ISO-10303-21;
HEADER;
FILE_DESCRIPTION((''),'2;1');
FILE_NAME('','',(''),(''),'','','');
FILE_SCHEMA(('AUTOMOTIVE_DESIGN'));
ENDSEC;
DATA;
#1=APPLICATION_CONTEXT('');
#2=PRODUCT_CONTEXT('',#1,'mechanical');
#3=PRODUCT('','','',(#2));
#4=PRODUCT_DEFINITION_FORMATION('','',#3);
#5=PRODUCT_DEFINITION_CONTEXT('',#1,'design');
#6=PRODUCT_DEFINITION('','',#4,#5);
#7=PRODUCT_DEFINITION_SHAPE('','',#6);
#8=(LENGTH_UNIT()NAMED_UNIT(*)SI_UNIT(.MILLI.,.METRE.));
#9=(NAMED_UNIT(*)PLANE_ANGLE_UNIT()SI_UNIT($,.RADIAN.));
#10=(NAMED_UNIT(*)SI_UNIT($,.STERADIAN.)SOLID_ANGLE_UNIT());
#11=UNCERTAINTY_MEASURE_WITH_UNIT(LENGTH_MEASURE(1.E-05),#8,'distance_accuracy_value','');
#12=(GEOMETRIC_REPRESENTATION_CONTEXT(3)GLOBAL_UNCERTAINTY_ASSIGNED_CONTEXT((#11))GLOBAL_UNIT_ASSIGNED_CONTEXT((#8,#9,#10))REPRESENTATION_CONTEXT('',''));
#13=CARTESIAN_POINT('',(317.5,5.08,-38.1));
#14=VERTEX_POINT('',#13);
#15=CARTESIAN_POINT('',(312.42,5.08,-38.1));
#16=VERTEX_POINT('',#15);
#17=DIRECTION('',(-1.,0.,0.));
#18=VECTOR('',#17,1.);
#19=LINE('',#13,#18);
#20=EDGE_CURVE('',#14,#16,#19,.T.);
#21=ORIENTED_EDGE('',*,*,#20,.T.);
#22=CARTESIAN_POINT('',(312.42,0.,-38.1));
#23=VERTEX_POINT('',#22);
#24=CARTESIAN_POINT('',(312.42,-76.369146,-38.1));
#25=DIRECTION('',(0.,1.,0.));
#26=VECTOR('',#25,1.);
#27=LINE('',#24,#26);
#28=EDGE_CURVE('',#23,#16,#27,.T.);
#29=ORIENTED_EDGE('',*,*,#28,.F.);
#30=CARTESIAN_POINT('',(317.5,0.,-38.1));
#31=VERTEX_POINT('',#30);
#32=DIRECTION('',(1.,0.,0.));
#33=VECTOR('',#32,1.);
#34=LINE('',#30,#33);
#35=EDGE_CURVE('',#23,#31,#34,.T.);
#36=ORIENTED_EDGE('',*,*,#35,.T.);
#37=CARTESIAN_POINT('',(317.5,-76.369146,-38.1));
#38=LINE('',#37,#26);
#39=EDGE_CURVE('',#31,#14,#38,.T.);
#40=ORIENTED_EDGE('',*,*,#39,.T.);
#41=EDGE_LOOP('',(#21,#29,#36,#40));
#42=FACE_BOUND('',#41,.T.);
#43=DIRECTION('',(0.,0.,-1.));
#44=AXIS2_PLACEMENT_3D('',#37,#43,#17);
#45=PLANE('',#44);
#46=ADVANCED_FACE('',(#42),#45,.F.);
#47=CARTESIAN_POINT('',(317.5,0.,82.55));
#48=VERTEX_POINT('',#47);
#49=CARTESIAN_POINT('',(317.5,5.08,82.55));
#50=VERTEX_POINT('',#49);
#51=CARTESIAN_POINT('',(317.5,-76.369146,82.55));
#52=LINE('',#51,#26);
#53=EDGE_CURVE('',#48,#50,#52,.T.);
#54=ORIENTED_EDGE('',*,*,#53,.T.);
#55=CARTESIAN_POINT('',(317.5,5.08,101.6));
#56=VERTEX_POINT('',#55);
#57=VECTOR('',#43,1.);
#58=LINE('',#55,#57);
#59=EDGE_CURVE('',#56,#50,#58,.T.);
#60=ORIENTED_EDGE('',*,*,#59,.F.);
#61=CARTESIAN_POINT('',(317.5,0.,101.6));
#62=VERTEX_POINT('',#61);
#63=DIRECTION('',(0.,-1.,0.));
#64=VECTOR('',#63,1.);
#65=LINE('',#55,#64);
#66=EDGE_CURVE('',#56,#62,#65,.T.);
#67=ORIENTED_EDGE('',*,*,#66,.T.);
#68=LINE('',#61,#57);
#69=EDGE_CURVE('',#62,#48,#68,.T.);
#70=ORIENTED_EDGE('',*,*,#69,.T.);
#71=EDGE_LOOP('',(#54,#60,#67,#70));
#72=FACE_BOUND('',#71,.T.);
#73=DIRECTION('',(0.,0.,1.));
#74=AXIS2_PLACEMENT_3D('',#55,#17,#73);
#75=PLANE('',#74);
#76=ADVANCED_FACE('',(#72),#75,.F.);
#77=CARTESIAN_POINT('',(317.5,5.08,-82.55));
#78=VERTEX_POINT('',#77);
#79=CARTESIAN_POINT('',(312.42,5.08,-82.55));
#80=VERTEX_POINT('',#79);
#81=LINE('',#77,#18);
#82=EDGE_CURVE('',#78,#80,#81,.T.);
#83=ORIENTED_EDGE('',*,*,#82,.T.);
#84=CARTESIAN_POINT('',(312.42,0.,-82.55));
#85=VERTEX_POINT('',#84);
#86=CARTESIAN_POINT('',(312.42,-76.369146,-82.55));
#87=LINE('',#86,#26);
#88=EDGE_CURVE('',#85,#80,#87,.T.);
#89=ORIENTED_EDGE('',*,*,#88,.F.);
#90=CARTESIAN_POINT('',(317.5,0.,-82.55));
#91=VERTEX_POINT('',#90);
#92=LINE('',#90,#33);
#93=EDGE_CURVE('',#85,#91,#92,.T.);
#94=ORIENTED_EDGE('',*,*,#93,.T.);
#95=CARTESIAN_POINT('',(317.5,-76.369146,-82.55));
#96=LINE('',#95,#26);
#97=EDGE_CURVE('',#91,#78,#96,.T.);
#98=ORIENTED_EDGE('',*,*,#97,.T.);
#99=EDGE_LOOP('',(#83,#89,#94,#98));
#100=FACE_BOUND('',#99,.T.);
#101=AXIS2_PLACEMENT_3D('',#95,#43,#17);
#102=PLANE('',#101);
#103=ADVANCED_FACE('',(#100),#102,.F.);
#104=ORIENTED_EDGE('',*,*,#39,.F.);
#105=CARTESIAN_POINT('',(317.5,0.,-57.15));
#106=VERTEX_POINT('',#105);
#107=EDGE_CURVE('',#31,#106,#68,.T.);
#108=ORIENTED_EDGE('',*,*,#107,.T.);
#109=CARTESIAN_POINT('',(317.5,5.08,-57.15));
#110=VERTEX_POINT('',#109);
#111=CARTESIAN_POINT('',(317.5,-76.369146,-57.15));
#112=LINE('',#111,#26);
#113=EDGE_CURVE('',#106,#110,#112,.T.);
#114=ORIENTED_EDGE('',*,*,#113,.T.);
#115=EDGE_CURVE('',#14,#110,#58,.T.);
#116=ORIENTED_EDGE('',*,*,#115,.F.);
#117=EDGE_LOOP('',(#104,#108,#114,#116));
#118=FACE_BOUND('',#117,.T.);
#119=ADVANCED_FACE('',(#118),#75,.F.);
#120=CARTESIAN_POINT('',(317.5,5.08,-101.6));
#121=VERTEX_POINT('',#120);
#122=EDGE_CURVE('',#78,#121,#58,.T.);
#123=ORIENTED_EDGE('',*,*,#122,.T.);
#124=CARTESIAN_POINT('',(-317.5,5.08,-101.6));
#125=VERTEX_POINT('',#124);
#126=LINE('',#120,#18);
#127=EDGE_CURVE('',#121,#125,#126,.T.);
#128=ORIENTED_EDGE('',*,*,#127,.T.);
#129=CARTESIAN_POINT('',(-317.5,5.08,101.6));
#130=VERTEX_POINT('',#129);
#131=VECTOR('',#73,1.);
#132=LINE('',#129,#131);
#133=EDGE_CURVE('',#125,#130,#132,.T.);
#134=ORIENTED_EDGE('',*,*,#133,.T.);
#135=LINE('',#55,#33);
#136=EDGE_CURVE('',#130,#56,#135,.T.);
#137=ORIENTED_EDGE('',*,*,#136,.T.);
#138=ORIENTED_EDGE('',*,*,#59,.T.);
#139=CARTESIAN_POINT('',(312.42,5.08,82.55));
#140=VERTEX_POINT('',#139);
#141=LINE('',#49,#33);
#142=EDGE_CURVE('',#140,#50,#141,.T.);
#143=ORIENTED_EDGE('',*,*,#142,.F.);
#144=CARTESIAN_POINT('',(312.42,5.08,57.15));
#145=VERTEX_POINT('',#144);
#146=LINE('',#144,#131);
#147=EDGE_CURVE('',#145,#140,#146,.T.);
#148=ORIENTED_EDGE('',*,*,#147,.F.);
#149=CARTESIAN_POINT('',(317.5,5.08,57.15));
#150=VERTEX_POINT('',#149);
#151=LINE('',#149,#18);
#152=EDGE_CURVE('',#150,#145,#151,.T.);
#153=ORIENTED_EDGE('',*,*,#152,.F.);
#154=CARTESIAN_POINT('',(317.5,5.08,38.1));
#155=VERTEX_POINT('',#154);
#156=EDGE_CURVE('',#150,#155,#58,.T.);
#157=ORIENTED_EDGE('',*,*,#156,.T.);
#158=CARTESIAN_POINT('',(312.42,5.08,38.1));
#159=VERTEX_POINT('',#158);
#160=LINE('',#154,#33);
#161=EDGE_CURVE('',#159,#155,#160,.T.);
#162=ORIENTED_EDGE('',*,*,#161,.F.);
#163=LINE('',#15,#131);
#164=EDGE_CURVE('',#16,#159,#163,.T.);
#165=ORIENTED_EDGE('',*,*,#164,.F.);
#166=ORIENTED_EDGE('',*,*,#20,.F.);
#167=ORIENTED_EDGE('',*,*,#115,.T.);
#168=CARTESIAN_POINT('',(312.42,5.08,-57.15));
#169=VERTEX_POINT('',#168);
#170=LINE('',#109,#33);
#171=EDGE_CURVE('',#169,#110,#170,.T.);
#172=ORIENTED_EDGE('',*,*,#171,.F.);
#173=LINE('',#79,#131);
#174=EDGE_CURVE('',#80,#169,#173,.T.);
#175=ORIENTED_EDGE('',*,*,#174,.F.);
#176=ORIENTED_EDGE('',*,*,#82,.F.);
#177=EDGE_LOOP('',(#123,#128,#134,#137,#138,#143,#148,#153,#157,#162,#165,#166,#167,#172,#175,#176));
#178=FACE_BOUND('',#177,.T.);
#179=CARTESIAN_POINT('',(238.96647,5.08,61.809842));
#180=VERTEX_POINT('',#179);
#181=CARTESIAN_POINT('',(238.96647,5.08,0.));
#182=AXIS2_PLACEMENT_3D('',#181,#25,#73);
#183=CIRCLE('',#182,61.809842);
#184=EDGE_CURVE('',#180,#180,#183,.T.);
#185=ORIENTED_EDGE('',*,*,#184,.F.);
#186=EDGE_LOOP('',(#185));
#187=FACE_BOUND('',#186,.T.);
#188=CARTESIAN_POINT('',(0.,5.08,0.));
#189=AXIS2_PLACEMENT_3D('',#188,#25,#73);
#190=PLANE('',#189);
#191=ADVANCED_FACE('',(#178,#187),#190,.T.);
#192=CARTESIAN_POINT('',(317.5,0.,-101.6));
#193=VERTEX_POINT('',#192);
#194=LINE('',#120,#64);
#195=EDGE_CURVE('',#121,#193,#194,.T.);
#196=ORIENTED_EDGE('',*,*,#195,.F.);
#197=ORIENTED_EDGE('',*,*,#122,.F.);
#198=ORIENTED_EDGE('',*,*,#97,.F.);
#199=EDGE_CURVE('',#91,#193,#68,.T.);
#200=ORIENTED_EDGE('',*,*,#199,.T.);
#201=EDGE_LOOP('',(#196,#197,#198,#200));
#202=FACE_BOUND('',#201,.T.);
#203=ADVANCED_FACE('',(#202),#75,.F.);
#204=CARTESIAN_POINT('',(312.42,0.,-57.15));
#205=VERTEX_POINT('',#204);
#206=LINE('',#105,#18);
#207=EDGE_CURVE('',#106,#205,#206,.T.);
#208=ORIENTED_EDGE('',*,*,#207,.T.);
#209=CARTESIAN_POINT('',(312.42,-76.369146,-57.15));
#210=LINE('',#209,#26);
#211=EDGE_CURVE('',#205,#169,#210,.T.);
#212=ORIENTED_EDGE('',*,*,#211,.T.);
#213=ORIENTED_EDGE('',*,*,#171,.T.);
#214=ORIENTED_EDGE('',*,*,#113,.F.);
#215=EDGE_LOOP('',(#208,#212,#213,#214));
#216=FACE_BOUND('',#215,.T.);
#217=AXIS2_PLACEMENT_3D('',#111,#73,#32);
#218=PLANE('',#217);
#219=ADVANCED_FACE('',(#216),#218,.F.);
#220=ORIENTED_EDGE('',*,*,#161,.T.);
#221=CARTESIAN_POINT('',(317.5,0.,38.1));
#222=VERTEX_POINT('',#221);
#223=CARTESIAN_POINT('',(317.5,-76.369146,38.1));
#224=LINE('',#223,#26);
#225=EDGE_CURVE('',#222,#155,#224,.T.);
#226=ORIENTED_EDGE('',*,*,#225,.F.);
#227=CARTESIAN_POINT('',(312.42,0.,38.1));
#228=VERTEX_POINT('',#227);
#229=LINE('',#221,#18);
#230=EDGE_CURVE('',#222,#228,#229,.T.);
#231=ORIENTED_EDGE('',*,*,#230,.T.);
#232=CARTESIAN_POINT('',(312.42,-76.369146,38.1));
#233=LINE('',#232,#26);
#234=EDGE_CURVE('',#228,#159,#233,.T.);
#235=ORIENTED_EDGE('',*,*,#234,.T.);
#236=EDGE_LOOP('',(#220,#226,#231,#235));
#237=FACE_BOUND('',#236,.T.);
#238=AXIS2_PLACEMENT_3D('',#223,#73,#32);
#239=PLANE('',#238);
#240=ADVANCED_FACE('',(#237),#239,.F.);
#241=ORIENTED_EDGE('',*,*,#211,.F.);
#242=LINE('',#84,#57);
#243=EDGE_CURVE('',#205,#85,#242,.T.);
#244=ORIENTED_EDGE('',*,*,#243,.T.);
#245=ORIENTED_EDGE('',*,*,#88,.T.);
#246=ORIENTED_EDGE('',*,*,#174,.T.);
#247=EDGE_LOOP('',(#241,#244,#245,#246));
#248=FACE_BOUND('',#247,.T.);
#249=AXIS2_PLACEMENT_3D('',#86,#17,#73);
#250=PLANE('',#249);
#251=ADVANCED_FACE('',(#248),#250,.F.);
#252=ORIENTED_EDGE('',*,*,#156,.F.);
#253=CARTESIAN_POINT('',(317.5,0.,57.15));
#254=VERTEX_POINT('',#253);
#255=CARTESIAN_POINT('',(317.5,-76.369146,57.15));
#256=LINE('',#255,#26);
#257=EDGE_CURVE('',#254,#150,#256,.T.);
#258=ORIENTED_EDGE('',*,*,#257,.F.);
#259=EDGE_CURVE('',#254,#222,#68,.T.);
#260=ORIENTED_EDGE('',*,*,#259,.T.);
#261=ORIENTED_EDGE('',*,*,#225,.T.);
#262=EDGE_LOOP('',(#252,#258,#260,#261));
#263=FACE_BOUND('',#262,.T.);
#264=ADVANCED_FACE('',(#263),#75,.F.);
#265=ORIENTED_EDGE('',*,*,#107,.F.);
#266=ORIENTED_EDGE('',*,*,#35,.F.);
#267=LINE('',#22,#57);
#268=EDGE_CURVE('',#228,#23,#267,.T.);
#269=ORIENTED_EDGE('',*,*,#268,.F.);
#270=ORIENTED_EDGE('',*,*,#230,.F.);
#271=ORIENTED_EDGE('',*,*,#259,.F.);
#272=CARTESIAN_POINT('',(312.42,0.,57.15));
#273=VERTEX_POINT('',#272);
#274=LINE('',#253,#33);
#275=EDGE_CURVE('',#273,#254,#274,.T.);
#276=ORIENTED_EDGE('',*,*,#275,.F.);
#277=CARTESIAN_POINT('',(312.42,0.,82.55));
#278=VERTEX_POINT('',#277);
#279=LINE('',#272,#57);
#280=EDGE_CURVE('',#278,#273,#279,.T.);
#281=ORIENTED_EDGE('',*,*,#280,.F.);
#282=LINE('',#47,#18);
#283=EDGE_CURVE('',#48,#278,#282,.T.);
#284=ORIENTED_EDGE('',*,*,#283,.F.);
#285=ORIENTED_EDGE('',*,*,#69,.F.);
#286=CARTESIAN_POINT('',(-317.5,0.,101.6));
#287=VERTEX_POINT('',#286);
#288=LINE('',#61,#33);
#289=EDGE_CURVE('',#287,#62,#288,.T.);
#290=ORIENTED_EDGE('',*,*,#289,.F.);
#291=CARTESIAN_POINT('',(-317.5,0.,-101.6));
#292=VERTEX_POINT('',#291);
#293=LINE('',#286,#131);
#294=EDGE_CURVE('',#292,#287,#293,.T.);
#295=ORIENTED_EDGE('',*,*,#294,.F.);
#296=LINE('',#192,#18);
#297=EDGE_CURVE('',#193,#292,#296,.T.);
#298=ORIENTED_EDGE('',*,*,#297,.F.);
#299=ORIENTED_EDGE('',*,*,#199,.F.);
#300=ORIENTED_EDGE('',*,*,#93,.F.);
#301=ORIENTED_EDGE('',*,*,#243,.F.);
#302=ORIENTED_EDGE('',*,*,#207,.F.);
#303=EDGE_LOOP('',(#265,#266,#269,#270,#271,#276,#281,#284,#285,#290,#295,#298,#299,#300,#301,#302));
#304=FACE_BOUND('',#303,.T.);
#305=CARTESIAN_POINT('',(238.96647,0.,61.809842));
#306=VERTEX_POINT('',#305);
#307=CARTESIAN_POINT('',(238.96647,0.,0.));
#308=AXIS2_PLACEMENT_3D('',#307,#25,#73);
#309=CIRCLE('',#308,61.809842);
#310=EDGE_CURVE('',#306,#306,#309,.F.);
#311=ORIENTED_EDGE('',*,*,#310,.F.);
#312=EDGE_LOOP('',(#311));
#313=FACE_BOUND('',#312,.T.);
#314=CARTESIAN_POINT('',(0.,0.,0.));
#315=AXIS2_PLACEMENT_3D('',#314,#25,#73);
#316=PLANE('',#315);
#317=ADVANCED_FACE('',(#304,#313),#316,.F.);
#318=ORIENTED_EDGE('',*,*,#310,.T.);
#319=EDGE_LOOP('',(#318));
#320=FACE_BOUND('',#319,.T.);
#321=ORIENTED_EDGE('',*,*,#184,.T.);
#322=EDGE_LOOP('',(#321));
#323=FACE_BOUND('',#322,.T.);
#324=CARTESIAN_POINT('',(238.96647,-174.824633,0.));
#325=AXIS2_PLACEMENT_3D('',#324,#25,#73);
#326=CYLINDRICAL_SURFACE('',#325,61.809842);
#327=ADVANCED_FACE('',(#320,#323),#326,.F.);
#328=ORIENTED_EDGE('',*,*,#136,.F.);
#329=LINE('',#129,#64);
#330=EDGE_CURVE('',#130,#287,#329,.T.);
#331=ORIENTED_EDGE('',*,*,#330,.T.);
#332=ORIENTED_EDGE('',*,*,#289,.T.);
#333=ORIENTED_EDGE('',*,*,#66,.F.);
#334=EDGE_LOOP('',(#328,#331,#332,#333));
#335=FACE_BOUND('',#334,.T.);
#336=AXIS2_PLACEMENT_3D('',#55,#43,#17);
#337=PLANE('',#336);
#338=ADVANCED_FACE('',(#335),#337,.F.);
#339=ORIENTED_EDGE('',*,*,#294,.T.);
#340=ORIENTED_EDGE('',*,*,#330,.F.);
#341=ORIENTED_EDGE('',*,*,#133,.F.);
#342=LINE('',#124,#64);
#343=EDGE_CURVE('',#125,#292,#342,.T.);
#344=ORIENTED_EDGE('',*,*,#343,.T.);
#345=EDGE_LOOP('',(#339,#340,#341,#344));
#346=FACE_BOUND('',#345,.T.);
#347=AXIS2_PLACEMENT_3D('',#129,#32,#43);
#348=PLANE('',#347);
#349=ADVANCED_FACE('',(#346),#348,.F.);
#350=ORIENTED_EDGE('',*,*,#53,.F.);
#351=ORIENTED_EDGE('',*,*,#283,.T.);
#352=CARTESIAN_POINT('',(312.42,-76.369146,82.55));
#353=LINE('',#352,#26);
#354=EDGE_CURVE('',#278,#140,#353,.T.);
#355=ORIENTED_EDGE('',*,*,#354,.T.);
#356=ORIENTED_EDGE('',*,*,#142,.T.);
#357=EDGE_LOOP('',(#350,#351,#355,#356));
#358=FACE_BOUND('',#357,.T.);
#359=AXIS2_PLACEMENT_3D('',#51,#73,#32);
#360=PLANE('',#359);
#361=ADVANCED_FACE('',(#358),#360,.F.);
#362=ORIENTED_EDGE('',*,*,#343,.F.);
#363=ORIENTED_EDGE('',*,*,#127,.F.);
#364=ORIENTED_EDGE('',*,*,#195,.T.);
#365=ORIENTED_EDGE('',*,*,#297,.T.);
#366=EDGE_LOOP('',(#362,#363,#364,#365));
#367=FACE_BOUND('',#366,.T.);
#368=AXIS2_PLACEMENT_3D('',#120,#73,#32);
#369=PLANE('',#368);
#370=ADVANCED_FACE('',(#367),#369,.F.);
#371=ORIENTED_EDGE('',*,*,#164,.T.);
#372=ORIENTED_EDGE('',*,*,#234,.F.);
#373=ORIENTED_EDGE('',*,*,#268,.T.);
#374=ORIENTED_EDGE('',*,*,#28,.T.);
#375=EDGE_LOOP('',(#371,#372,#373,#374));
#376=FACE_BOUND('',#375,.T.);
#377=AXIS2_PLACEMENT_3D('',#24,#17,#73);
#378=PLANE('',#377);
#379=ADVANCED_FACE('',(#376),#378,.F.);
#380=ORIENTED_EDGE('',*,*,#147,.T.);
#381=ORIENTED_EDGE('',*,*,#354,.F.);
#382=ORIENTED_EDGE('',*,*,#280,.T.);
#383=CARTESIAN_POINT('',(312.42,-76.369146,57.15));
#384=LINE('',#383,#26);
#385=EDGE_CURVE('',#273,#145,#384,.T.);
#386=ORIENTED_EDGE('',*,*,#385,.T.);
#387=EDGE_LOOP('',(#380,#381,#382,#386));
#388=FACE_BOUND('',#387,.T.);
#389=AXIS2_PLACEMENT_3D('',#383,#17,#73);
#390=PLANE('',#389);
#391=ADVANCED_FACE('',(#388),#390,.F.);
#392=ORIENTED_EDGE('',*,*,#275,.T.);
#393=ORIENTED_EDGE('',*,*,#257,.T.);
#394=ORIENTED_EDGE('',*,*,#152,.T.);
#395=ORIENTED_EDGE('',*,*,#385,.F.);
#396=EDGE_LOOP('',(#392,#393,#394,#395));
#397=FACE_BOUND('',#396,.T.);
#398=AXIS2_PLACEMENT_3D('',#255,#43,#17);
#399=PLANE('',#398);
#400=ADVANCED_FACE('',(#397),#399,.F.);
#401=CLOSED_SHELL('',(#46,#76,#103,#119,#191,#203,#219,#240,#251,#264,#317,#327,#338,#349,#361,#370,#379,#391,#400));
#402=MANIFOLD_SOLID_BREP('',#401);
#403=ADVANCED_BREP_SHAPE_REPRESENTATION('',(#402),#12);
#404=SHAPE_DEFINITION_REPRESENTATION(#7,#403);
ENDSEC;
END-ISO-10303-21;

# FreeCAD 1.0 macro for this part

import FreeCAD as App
import Part
import Sketcher
from FreeCAD import Vector
Q = App.Units.Quantity

doc = App.newDocument("Part")
params = doc.addObject("Spreadsheet::Sheet", "Params")
for row, (alias, value) in enumerate([
    ("sketch1_width", "25 in"),
    ("sketch1_height", "8 in"),
    ("pad1_length", "0.2 in"),
    ("sketch2_height", "1 in"),
    ("sketch2_height2", "3 in"),
    ("sketch2_width", "0.2 in"),
    ("pocket1_length", "0.2 in"),
    ("pocket2_length", "0.2 in"),
], start=1):
    params.set(f"A{row}", alias)
    params.set(f"B{row}", "=" + value)
    params.setAlias(f"B{row}", alias)

body = doc.addObject("PartDesign::Body", "Body")

# Sketch on XZ plane
sketch1 = body.newObject("Sketcher::SketchObject", "Sketch")
sketch1.AttachmentSupport = (doc.getObject("XZ_Plane"), [""])
sketch1.MapMode = "FlatFace"
sketch1.addGeometry([
    Part.LineSegment(Vector(-318, -102, 0), Vector(-318, 102, 0)),
    Part.LineSegment(Vector(-318, 102, 0), Vector(318, 102, 0)),
    Part.LineSegment(Vector(318, 102, 0), Vector(318, -102, 0)),
    Part.LineSegment(Vector(318, -102, 0), Vector(-318, -102, 0)),
], False)
sketch1.addConstraint([
    Sketcher.Constraint("Coincident", 0, 2, 1, 1),
    Sketcher.Constraint("Coincident", 1, 2, 2, 1),
    Sketcher.Constraint("Coincident", 2, 2, 3, 1),
    Sketcher.Constraint("Coincident", 3, 2, 0, 1),
    Sketcher.Constraint("Vertical", 0),
    Sketcher.Constraint("Horizontal", 1),
    Sketcher.Constraint("Vertical", 2),
    Sketcher.Constraint("Horizontal", 3),
    Sketcher.Constraint("Symmetric", 0, 2, 2, 2, -1, 1),
    Sketcher.Constraint("DistanceX", 1, 1, 1, 2, Q("25 in")),
    Sketcher.Constraint("DistanceY", 0, 1, 0, 2, Q("8 in")),
])
sketch1.setExpression("Constraints[9]", "Params.sketch1_width")
sketch1.setExpression("Constraints[10]", "Params.sketch1_height")
pad1 = body.newObject("PartDesign::Pad", "Pad")
pad1.Profile = sketch1
pad1.setExpression("Length", "Params.pad1_length")
pad1.Reversed = True

# Sketch on XZ plane
sketch2 = body.newObject("Sketcher::SketchObject", "Sketch001")
sketch2.AttachmentSupport = (doc.getObject("XZ_Plane"), [""])
sketch2.MapMode = "FlatFace"
sketch2.AttachmentOffset = App.Placement(Vector(0, 0, -0.2 * 25.4), App.Rotation())
sketch2.addGeometry([
    Part.LineSegment(Vector(312, -83, 0), Vector(312, -57, 0)),  # 0
    Part.LineSegment(Vector(312, -57, 0), Vector(318, -57, 0)),  # 1
    Part.LineSegment(Vector(318, -57, 0), Vector(318, -83, 0)),  # 2
    Part.LineSegment(Vector(318, -83, 0), Vector(312, -83, 0)),  # 3
    Part.LineSegment(Vector(312, 57, 0), Vector(312, 83, 0)),  # 4
    Part.LineSegment(Vector(312, 83, 0), Vector(318, 83, 0)),  # 5
    Part.LineSegment(Vector(318, 83, 0), Vector(318, 57, 0)),  # 6
    Part.LineSegment(Vector(318, 57, 0), Vector(312, 57, 0)),  # 7
    Part.LineSegment(Vector(312, -38, 0), Vector(312, 38, 0)),  # 8
    Part.LineSegment(Vector(312, 38, 0), Vector(318, 38, 0)),  # 9
    Part.LineSegment(Vector(318, 38, 0), Vector(318, -38, 0)),  # 10
    Part.LineSegment(Vector(318, -38, 0), Vector(312, -38, 0)),  # 11
], False)
sketch2.addConstraint([
    Sketcher.Constraint("Coincident", 0, 2, 1, 1),
    Sketcher.Constraint("Coincident", 1, 2, 2, 1),
    Sketcher.Constraint("Coincident", 2, 2, 3, 1),
    Sketcher.Constraint("Coincident", 3, 2, 0, 1),
    Sketcher.Constraint("Coincident", 4, 2, 5, 1),
    Sketcher.Constraint("Coincident", 5, 2, 6, 1),
    Sketcher.Constraint("Coincident", 6, 2, 7, 1),
    Sketcher.Constraint("Coincident", 7, 2, 4, 1),
    Sketcher.Constraint("Coincident", 8, 2, 9, 1),
    Sketcher.Constraint("Coincident", 9, 2, 10, 1),
    Sketcher.Constraint("Coincident", 10, 2, 11, 1),
    Sketcher.Constraint("Coincident", 11, 2, 8, 1),
    Sketcher.Constraint("Vertical", 0),
    Sketcher.Constraint("Horizontal", 1),
    Sketcher.Constraint("Vertical", 2),
    Sketcher.Constraint("Horizontal", 3),
    Sketcher.Constraint("Vertical", 4),
    Sketcher.Constraint("Horizontal", 5),
    Sketcher.Constraint("Vertical", 6),
    Sketcher.Constraint("Horizontal", 7),
    Sketcher.Constraint("Vertical", 8),
    Sketcher.Constraint("Horizontal", 9),
    Sketcher.Constraint("Vertical", 10),
    Sketcher.Constraint("Horizontal", 11),
    Sketcher.Constraint("Symmetric", 3, 2, 4, 2, -1),
    Sketcher.Constraint("Symmetric", 1, 2, 6, 2, -1),
    Sketcher.Constraint("Vertical", 7, 2, 8, 2),
    Sketcher.Constraint("Vertical", 6, 2, 9, 2),
    Sketcher.Constraint("DistanceY", 0, 1, 0, 2, Q("1 in")),
    Sketcher.Constraint("DistanceY", 8, 1, 8, 2, Q("3 in")),
    Sketcher.Constraint("DistanceX", 1, 1, 1, 2, Q("0.2 in")),
    Sketcher.Constraint("DistanceX", -1, 1, 0, 2, Q("12.3 in")),
    Sketcher.Constraint("DistanceY", -1, 1, 8, 2, Q("1.5 in")),
    Sketcher.Constraint("DistanceY", 0, 2, 4, 2, Q("5.5 in")),
])
sketch2.setExpression("Constraints[28]", "Params.sketch2_height")
sketch2.setExpression("Constraints[29]", "Params.sketch2_height2")
sketch2.setExpression("Constraints[30]", "Params.sketch2_width")
pocket1 = body.newObject("PartDesign::Pocket", "Pocket")
pocket1.Profile = sketch2
pocket1.setExpression("Length", "Params.pocket1_length")
pocket1.Reversed = True

# Sketch on XZ plane
sketch3 = body.newObject("Sketcher::SketchObject", "Sketch002")
sketch3.AttachmentSupport = (doc.getObject("XZ_Plane"), [""])
sketch3.MapMode = "FlatFace"
sketch3.AttachmentOffset = App.Placement(Vector(0, 0, -0.2 * 25.4), App.Rotation())
sketch3.addGeometry(Part.Circle(Vector(239, 0, 0), Vector(0, 0, 1), 62), False)
sketch3.addConstraint([
    Sketcher.Constraint("PointOnObject", 0, 3, -1),
    Sketcher.Constraint("Diameter", 0, Q("123.619684 mm")),
    Sketcher.Constraint("DistanceX", -1, 1, 0, 3, Q("238.96647 mm")),
])
pocket2 = body.newObject("PartDesign::Pocket", "Pocket001")
pocket2.Profile = sketch3
pocket2.setExpression("Length", "Params.pocket2_length")
pocket2.Reversed = True

doc.recompute()
